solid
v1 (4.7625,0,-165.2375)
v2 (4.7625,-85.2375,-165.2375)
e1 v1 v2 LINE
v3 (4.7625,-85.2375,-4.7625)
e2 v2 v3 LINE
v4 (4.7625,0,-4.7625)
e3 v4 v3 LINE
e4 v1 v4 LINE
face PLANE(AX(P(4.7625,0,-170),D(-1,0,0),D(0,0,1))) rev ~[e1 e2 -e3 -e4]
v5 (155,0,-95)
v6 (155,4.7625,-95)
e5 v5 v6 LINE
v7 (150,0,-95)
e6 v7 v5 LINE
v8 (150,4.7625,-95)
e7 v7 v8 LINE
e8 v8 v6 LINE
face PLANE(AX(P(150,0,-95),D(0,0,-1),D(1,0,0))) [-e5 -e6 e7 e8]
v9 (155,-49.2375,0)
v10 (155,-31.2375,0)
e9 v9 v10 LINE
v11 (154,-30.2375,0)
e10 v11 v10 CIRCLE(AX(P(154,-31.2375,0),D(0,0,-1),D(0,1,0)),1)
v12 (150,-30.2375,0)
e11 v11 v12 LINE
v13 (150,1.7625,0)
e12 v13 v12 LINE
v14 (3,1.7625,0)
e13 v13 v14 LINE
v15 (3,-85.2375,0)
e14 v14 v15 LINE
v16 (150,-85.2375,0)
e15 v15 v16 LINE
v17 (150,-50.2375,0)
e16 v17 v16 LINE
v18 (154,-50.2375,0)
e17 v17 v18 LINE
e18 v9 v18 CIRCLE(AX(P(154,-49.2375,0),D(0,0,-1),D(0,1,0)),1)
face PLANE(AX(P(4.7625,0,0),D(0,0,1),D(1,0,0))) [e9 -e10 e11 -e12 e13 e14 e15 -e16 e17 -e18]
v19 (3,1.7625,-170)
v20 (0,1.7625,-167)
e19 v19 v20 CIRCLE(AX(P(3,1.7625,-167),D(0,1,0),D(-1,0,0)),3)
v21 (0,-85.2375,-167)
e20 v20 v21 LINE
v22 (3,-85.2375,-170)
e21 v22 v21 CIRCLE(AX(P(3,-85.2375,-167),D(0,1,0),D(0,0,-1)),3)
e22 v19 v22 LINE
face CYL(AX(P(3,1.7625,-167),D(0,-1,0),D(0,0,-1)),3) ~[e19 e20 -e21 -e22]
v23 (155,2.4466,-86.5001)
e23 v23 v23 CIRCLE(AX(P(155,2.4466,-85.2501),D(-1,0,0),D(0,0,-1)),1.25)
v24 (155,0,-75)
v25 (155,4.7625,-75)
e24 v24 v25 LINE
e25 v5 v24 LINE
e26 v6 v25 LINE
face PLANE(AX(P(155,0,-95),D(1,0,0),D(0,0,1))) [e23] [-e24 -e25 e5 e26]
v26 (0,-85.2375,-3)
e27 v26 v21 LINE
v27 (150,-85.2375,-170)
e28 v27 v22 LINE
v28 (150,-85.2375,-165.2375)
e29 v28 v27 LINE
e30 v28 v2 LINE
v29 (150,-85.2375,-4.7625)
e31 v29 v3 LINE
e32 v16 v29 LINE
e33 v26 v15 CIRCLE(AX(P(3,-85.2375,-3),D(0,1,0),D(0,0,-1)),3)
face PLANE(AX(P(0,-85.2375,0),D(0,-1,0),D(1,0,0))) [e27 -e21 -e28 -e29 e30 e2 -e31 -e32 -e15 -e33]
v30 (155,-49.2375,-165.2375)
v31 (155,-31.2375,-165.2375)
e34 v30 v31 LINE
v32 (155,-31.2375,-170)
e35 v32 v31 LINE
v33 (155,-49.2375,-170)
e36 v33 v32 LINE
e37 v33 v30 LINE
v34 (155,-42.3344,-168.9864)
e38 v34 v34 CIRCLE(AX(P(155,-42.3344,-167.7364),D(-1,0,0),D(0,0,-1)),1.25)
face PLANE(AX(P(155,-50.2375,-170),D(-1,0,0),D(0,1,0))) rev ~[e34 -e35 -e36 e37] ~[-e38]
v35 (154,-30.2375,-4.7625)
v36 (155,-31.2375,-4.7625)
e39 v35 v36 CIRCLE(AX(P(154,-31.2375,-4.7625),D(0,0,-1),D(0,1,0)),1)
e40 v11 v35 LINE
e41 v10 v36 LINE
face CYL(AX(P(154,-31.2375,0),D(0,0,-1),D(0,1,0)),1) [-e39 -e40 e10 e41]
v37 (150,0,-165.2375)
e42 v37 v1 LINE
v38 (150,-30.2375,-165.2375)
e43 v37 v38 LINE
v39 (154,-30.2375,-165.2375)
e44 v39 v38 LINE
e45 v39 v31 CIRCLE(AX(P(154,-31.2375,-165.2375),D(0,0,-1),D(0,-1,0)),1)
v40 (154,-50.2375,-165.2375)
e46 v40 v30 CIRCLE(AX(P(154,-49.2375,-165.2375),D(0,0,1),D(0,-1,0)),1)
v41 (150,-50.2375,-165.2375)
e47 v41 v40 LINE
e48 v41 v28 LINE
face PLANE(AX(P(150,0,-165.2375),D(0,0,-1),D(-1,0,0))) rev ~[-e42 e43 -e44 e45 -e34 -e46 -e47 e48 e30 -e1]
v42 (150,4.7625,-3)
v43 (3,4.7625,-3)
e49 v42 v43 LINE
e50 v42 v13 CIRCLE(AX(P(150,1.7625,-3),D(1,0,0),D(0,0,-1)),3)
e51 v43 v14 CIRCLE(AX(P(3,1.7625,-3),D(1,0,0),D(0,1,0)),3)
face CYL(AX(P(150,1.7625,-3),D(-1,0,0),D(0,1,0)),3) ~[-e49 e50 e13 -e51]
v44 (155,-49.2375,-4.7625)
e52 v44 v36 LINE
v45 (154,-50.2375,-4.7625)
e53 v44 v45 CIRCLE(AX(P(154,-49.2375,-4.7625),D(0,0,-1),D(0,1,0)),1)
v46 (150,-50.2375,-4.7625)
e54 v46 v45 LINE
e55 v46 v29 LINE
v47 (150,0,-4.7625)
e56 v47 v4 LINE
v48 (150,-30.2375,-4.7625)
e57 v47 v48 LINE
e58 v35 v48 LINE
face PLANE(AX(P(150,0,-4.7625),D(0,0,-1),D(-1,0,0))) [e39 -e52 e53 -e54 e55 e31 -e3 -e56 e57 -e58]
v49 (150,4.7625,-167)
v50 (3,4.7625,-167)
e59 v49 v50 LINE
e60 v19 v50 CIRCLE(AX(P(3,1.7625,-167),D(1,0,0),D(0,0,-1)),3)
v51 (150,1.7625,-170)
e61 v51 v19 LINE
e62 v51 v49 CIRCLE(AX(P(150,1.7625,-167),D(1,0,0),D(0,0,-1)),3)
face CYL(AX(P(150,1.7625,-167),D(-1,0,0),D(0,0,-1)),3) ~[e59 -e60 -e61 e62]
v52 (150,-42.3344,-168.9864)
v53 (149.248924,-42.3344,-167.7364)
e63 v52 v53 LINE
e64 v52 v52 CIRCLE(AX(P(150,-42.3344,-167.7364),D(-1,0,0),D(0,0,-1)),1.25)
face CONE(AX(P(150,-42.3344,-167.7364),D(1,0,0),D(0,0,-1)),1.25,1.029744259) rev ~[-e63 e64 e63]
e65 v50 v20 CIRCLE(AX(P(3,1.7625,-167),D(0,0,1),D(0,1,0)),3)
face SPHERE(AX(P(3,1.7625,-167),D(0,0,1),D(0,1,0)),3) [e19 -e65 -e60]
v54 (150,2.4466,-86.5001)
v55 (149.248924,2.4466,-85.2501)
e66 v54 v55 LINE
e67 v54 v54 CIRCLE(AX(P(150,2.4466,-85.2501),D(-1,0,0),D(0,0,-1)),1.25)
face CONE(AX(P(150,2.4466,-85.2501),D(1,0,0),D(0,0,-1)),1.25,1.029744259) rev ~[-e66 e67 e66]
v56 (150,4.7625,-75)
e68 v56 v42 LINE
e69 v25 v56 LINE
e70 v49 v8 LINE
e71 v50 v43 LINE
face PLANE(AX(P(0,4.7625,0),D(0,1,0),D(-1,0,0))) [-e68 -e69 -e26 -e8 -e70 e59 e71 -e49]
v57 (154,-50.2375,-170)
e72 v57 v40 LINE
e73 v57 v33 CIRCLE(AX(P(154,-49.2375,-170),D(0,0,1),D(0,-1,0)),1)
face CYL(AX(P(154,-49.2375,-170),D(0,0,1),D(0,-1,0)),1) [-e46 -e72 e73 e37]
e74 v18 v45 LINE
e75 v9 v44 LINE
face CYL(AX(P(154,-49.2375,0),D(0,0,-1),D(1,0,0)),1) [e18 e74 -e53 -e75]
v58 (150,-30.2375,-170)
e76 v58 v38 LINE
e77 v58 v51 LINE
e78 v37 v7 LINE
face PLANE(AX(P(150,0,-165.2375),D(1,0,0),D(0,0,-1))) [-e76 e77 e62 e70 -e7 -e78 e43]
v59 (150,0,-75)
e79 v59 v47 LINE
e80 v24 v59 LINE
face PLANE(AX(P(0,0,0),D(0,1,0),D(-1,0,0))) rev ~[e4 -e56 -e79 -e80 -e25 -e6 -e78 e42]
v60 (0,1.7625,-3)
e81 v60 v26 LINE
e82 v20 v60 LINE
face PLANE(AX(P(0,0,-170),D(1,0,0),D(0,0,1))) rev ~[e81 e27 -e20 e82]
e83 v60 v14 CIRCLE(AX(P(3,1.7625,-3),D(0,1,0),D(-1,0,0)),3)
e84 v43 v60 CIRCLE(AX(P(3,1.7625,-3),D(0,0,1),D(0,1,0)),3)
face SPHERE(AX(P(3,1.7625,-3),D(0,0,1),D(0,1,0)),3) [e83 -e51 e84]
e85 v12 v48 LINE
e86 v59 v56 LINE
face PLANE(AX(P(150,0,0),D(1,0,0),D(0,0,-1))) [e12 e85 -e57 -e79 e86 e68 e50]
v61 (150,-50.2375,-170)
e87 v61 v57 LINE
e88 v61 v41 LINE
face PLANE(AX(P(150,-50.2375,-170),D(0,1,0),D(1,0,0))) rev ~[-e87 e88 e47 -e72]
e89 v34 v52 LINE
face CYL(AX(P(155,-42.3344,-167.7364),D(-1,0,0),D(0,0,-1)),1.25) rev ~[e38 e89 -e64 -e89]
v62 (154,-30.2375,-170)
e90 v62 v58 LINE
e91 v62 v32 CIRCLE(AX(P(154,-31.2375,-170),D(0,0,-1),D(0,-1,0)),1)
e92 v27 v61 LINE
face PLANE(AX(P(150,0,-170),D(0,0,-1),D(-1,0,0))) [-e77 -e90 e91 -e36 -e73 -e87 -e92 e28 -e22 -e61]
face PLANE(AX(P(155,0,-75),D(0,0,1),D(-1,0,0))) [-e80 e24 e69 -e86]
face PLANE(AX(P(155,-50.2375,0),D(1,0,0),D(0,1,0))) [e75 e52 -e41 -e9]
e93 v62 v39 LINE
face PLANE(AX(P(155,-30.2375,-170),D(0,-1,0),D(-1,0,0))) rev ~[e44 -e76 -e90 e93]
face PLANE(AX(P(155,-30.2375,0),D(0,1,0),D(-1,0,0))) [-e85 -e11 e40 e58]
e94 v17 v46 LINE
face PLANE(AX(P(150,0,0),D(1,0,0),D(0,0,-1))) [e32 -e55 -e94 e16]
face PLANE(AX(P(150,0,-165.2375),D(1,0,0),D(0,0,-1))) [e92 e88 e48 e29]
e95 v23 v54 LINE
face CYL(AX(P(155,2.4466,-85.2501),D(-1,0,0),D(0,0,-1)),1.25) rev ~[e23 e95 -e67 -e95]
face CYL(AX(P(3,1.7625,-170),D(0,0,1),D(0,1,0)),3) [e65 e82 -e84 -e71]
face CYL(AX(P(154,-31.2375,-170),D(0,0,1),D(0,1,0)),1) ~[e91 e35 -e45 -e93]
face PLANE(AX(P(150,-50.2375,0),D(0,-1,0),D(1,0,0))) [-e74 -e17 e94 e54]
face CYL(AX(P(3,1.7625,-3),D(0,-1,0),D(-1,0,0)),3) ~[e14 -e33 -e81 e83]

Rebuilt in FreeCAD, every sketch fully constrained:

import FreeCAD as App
import Part
import Sketcher


def edges_at(feature, points):
    """Names of the edges that pass closest to the given points."""
    edges = feature.Shape.Edges
    near = lambda p: min(range(len(edges)), key=lambda i: edges[i].distToShape(Part.Vertex(*p))[0])
    return sorted({f"Edge{near(p) + 1}" for p in points})


def add_polygon(sketch, points):
    """Adds a closed chain of lines whose ends are joined by coincident constraints."""
    first, n = sketch.GeometryCount, len(points)
    for a, b in zip(points, points[1:] + points[:1]):
        sketch.addGeometry(Part.LineSegment(App.Vector(*a, 0), App.Vector(*b, 0)), False)
    for i in range(n):
        sketch.addConstraint(Sketcher.Constraint("Coincident", first + i, 2, first + (i + 1) % n, 1))

doc = App.newDocument("Part")
body = doc.addObject("PartDesign::Body", "Body")

sketch1 = body.newObject("Sketcher::SketchObject", "Sketch")
sketch1.AttachmentSupport = (doc.getObject("XZ_Plane"), [""])
sketch1.MapMode = "FlatFace"
add_polygon(sketch1, [(0, -170), (0, 0), (150, 0), (150, -75), (155, -75), (155, -95), (150, -95), (150, -170)])
sketch1.addConstraint([
    Sketcher.Constraint("Vertical", 0),
    Sketcher.Constraint("Horizontal", 1),
    Sketcher.Constraint("Vertical", 2),
    Sketcher.Constraint("Horizontal", 3),
    Sketcher.Constraint("Vertical", 4),
    Sketcher.Constraint("Horizontal", 5),
    Sketcher.Constraint("Vertical", 6),
    Sketcher.Constraint("Horizontal", 7),
    Sketcher.Constraint("Coincident", 0, 2, -1, 1),
    Sketcher.Constraint("Vertical", 2, 2, 5, 2),
    Sketcher.Constraint("Equal", 2, 6),
    Sketcher.Constraint("DistanceX", 1, 1, 1, 2, 150.0),
    Sketcher.Constraint("DistanceX", 3, 1, 3, 2, 5.0),
    Sketcher.Constraint("DistanceY", 0, 1, 0, 2, 170.0),
    Sketcher.Constraint("DistanceY", 2, 2, 2, 1, 75.0),
])
pad1 = body.newObject("PartDesign::Pad", "Pad")
pad1.Profile = sketch1
pad1.Length = 4.7625
pad1.Reversed = True

sketch2 = body.newObject("Sketcher::SketchObject", "Sketch001")
sketch2.AttachmentSupport = (doc.getObject("XZ_Plane"), [""])
sketch2.MapMode = "FlatFace"
add_polygon(sketch2, [(4.8, 0), (0, 0), (0, -170), (4.8, -170)])
sketch2.addConstraint([
    Sketcher.Constraint("Horizontal", 0),
    Sketcher.Constraint("Vertical", 1),
    Sketcher.Constraint("Horizontal", 2),
    Sketcher.Constraint("Vertical", 3),
    Sketcher.Constraint("Coincident", 0, 2, -1, 1),
    Sketcher.Constraint("DistanceY", 1, 2, 1, 1, 170.0),
    Sketcher.Constraint("DistanceX", 0, 2, 0, 1, 4.7625),
])
pad2 = body.newObject("PartDesign::Pad", "Pad001")
pad2.Profile = sketch2
pad2.Length = 85.2375

sketch3 = body.newObject("Sketcher::SketchObject", "Sketch002")
sketch3.AttachmentSupport = (doc.getObject("XZ_Plane"), [""])
sketch3.MapMode = "FlatFace"
add_polygon(sketch3, [(150, -4.8), (150, 0), (4.8, 0), (4.8, -4.8)])
sketch3.addConstraint([
    Sketcher.Constraint("Vertical", 0),
    Sketcher.Constraint("Horizontal", 1),
    Sketcher.Constraint("Vertical", 2),
    Sketcher.Constraint("Horizontal", 3),
    Sketcher.Constraint("PointOnObject", 0, 2, -1),
    Sketcher.Constraint("DistanceY", 0, 1, 0, 2, 4.7625),
    Sketcher.Constraint("DistanceX", -1, 1, 0, 2, 150.0),
    Sketcher.Constraint("DistanceX", -1, 1, 1, 2, 4.7625),
])
pad3 = body.newObject("PartDesign::Pad", "Pad002")
pad3.Profile = sketch3
pad3.Length = 85.2375

sketch4 = body.newObject("Sketcher::SketchObject", "Sketch003")
sketch4.AttachmentSupport = (doc.getObject("XY_Plane"), [""])
sketch4.MapMode = "FlatFace"
add_polygon(sketch4, [(155, -30), (150, -30), (150, -50), (155, -50)])
sketch4.addConstraint([
    Sketcher.Constraint("Horizontal", 0),
    Sketcher.Constraint("Vertical", 1),
    Sketcher.Constraint("Horizontal", 2),
    Sketcher.Constraint("Vertical", 3),
    Sketcher.Constraint("DistanceX", 0, 2, 0, 1, 5.0),
    Sketcher.Constraint("DistanceY", 1, 2, 1, 1, 20.0),
    Sketcher.Constraint("DistanceX", -1, 1, 0, 2, 150.0),
    Sketcher.Constraint("DistanceY", 0, 2, -1, 1, 30.2375),
])
pad4 = body.newObject("PartDesign::Pad", "Pad003")
pad4.Profile = sketch4
pad4.Length = 4.7625
pad4.Reversed = True

sketch5 = body.newObject("Sketcher::SketchObject", "Sketch004")
sketch5.AttachmentSupport = (doc.getObject("XZ_Plane"), [""])
sketch5.MapMode = "FlatFace"
add_polygon(sketch5, [(150, -170), (150, -165.2), (4.8, -165.2), (4.8, -170)])
sketch5.addConstraint([
    Sketcher.Constraint("Vertical", 0),
    Sketcher.Constraint("Horizontal", 1),
    Sketcher.Constraint("Vertical", 2),
    Sketcher.Constraint("Horizontal", 3),
    Sketcher.Constraint("DistanceY", 0, 1, 0, 2, 4.7625),
    Sketcher.Constraint("DistanceX", -1, 1, 0, 2, 150.0),
    Sketcher.Constraint("DistanceY", 2, 2, -1, 1, 170.0),
    Sketcher.Constraint("DistanceX", -1, 1, 1, 2, 4.7625),
])
pad5 = body.newObject("PartDesign::Pad", "Pad004")
pad5.Profile = sketch5
pad5.Length = 85.2375

sketch6 = body.newObject("Sketcher::SketchObject", "Sketch005")
sketch6.AttachmentSupport = (doc.getObject("XY_Plane"), [""])
sketch6.MapMode = "FlatFace"
sketch6.AttachmentOffset = App.Placement(App.Vector(0, 0, -170), App.Rotation())
add_polygon(sketch6, [(150, -50), (150, -30), (155, -30), (155, -50)])
sketch6.addConstraint([
    Sketcher.Constraint("Vertical", 0),
    Sketcher.Constraint("Horizontal", 1),
    Sketcher.Constraint("Vertical", 2),
    Sketcher.Constraint("Horizontal", 3),
    Sketcher.Constraint("DistanceX", 1, 1, 1, 2, 5.0),
    Sketcher.Constraint("DistanceY", 0, 1, 0, 2, 20.0),
    Sketcher.Constraint("DistanceX", -1, 1, 0, 2, 150.0),
    Sketcher.Constraint("DistanceY", 0, 2, -1, 1, 30.2375),
])
pad6 = body.newObject("PartDesign::Pad", "Pad005")
pad6.Profile = sketch6
pad6.Length = 4.7625
doc.recompute()

fillet = body.newObject("PartDesign::Fillet", "Fillet")
fillet.Base = (pad6, edges_at(pad6, [(0, 4.763, -85)]))
fillet.Radius = 3
doc.recompute()

fillet2 = body.newObject("PartDesign::Fillet", "Fillet001")
fillet2.Base = (fillet, edges_at(fillet, [
    (0.879, 3.884, -170),
    (0, -41.737, -170),
    (76.5, 4.763, -170),
    (0.879, 3.884, 0),
    (0, -41.737, 0),
    (76.5, 4.763, 0),
]))
fillet2.Radius = 3

sketch7 = body.newObject("Sketcher::SketchObject", "Sketch006")
sketch7.AttachmentSupport = (doc.getObject("YZ_Plane"), [""])
sketch7.MapMode = "FlatFace"
sketch7.AttachmentOffset = App.Placement(App.Vector(0, 0, 155), App.Rotation())
sketch7.addGeometry(Part.Circle(App.Vector(2.4, -85.3, 0), App.Vector(0, 0, 1), 1.2), False)
sketch7.addConstraint([
    Sketcher.Constraint("Diameter", 0, 2.5),
    Sketcher.Constraint("DistanceY", 0, 3, -1, 1, 85.25),
    Sketcher.Constraint("DistanceX", -1, 1, 0, 3, 2.4466),
])
doc.recompute()
hole = body.newObject("PartDesign::Hole", "Hole")
hole.Profile = sketch7
hole.ThreadType = "None"
hole.Diameter = 2.5
hole.DepthType = "Dimension"
hole.Depth = 5
hole.DrillPoint = "Angled"
hole.DrillPointAngle = 118

sketch8 = body.newObject("Sketcher::SketchObject", "Sketch007")
sketch8.AttachmentSupport = (doc.getObject("YZ_Plane"), [""])
sketch8.MapMode = "FlatFace"
sketch8.AttachmentOffset = App.Placement(App.Vector(0, 0, 155), App.Rotation())
sketch8.addGeometry(Part.Circle(App.Vector(-42.3, -167.7, 0), App.Vector(0, 0, 1), 1.2), False)
sketch8.addConstraint([
    Sketcher.Constraint("Diameter", 0, 2.5),
    Sketcher.Constraint("DistanceX", 0, 3, -1, 1, 42.3344),
    Sketcher.Constraint("DistanceY", 0, 3, -1, 1, 167.7364),
])
doc.recompute()
hole2 = body.newObject("PartDesign::Hole", "Hole001")
hole2.Profile = sketch8
hole2.ThreadType = "None"
hole2.Diameter = 2.5
hole2.DepthType = "Dimension"
hole2.Depth = 5
hole2.DrillPoint = "Angled"
hole2.DrillPointAngle = 118
doc.recompute()

fillet3 = body.newObject("PartDesign::Fillet", "Fillet002")
fillet3.Base = (hole2, edges_at(hole2, [(155, -50.237, -167.619), (155, -30.238, -167.619)]))
fillet3.Radius = 1
doc.recompute()

fillet4 = body.newObject("PartDesign::Fillet", "Fillet003")
fillet4.Base = (fillet3, edges_at(fillet3, [(155, -50.237, -2.381), (155, -30.238, -2.381)]))
fillet4.Radius = 1

doc.recompute()
